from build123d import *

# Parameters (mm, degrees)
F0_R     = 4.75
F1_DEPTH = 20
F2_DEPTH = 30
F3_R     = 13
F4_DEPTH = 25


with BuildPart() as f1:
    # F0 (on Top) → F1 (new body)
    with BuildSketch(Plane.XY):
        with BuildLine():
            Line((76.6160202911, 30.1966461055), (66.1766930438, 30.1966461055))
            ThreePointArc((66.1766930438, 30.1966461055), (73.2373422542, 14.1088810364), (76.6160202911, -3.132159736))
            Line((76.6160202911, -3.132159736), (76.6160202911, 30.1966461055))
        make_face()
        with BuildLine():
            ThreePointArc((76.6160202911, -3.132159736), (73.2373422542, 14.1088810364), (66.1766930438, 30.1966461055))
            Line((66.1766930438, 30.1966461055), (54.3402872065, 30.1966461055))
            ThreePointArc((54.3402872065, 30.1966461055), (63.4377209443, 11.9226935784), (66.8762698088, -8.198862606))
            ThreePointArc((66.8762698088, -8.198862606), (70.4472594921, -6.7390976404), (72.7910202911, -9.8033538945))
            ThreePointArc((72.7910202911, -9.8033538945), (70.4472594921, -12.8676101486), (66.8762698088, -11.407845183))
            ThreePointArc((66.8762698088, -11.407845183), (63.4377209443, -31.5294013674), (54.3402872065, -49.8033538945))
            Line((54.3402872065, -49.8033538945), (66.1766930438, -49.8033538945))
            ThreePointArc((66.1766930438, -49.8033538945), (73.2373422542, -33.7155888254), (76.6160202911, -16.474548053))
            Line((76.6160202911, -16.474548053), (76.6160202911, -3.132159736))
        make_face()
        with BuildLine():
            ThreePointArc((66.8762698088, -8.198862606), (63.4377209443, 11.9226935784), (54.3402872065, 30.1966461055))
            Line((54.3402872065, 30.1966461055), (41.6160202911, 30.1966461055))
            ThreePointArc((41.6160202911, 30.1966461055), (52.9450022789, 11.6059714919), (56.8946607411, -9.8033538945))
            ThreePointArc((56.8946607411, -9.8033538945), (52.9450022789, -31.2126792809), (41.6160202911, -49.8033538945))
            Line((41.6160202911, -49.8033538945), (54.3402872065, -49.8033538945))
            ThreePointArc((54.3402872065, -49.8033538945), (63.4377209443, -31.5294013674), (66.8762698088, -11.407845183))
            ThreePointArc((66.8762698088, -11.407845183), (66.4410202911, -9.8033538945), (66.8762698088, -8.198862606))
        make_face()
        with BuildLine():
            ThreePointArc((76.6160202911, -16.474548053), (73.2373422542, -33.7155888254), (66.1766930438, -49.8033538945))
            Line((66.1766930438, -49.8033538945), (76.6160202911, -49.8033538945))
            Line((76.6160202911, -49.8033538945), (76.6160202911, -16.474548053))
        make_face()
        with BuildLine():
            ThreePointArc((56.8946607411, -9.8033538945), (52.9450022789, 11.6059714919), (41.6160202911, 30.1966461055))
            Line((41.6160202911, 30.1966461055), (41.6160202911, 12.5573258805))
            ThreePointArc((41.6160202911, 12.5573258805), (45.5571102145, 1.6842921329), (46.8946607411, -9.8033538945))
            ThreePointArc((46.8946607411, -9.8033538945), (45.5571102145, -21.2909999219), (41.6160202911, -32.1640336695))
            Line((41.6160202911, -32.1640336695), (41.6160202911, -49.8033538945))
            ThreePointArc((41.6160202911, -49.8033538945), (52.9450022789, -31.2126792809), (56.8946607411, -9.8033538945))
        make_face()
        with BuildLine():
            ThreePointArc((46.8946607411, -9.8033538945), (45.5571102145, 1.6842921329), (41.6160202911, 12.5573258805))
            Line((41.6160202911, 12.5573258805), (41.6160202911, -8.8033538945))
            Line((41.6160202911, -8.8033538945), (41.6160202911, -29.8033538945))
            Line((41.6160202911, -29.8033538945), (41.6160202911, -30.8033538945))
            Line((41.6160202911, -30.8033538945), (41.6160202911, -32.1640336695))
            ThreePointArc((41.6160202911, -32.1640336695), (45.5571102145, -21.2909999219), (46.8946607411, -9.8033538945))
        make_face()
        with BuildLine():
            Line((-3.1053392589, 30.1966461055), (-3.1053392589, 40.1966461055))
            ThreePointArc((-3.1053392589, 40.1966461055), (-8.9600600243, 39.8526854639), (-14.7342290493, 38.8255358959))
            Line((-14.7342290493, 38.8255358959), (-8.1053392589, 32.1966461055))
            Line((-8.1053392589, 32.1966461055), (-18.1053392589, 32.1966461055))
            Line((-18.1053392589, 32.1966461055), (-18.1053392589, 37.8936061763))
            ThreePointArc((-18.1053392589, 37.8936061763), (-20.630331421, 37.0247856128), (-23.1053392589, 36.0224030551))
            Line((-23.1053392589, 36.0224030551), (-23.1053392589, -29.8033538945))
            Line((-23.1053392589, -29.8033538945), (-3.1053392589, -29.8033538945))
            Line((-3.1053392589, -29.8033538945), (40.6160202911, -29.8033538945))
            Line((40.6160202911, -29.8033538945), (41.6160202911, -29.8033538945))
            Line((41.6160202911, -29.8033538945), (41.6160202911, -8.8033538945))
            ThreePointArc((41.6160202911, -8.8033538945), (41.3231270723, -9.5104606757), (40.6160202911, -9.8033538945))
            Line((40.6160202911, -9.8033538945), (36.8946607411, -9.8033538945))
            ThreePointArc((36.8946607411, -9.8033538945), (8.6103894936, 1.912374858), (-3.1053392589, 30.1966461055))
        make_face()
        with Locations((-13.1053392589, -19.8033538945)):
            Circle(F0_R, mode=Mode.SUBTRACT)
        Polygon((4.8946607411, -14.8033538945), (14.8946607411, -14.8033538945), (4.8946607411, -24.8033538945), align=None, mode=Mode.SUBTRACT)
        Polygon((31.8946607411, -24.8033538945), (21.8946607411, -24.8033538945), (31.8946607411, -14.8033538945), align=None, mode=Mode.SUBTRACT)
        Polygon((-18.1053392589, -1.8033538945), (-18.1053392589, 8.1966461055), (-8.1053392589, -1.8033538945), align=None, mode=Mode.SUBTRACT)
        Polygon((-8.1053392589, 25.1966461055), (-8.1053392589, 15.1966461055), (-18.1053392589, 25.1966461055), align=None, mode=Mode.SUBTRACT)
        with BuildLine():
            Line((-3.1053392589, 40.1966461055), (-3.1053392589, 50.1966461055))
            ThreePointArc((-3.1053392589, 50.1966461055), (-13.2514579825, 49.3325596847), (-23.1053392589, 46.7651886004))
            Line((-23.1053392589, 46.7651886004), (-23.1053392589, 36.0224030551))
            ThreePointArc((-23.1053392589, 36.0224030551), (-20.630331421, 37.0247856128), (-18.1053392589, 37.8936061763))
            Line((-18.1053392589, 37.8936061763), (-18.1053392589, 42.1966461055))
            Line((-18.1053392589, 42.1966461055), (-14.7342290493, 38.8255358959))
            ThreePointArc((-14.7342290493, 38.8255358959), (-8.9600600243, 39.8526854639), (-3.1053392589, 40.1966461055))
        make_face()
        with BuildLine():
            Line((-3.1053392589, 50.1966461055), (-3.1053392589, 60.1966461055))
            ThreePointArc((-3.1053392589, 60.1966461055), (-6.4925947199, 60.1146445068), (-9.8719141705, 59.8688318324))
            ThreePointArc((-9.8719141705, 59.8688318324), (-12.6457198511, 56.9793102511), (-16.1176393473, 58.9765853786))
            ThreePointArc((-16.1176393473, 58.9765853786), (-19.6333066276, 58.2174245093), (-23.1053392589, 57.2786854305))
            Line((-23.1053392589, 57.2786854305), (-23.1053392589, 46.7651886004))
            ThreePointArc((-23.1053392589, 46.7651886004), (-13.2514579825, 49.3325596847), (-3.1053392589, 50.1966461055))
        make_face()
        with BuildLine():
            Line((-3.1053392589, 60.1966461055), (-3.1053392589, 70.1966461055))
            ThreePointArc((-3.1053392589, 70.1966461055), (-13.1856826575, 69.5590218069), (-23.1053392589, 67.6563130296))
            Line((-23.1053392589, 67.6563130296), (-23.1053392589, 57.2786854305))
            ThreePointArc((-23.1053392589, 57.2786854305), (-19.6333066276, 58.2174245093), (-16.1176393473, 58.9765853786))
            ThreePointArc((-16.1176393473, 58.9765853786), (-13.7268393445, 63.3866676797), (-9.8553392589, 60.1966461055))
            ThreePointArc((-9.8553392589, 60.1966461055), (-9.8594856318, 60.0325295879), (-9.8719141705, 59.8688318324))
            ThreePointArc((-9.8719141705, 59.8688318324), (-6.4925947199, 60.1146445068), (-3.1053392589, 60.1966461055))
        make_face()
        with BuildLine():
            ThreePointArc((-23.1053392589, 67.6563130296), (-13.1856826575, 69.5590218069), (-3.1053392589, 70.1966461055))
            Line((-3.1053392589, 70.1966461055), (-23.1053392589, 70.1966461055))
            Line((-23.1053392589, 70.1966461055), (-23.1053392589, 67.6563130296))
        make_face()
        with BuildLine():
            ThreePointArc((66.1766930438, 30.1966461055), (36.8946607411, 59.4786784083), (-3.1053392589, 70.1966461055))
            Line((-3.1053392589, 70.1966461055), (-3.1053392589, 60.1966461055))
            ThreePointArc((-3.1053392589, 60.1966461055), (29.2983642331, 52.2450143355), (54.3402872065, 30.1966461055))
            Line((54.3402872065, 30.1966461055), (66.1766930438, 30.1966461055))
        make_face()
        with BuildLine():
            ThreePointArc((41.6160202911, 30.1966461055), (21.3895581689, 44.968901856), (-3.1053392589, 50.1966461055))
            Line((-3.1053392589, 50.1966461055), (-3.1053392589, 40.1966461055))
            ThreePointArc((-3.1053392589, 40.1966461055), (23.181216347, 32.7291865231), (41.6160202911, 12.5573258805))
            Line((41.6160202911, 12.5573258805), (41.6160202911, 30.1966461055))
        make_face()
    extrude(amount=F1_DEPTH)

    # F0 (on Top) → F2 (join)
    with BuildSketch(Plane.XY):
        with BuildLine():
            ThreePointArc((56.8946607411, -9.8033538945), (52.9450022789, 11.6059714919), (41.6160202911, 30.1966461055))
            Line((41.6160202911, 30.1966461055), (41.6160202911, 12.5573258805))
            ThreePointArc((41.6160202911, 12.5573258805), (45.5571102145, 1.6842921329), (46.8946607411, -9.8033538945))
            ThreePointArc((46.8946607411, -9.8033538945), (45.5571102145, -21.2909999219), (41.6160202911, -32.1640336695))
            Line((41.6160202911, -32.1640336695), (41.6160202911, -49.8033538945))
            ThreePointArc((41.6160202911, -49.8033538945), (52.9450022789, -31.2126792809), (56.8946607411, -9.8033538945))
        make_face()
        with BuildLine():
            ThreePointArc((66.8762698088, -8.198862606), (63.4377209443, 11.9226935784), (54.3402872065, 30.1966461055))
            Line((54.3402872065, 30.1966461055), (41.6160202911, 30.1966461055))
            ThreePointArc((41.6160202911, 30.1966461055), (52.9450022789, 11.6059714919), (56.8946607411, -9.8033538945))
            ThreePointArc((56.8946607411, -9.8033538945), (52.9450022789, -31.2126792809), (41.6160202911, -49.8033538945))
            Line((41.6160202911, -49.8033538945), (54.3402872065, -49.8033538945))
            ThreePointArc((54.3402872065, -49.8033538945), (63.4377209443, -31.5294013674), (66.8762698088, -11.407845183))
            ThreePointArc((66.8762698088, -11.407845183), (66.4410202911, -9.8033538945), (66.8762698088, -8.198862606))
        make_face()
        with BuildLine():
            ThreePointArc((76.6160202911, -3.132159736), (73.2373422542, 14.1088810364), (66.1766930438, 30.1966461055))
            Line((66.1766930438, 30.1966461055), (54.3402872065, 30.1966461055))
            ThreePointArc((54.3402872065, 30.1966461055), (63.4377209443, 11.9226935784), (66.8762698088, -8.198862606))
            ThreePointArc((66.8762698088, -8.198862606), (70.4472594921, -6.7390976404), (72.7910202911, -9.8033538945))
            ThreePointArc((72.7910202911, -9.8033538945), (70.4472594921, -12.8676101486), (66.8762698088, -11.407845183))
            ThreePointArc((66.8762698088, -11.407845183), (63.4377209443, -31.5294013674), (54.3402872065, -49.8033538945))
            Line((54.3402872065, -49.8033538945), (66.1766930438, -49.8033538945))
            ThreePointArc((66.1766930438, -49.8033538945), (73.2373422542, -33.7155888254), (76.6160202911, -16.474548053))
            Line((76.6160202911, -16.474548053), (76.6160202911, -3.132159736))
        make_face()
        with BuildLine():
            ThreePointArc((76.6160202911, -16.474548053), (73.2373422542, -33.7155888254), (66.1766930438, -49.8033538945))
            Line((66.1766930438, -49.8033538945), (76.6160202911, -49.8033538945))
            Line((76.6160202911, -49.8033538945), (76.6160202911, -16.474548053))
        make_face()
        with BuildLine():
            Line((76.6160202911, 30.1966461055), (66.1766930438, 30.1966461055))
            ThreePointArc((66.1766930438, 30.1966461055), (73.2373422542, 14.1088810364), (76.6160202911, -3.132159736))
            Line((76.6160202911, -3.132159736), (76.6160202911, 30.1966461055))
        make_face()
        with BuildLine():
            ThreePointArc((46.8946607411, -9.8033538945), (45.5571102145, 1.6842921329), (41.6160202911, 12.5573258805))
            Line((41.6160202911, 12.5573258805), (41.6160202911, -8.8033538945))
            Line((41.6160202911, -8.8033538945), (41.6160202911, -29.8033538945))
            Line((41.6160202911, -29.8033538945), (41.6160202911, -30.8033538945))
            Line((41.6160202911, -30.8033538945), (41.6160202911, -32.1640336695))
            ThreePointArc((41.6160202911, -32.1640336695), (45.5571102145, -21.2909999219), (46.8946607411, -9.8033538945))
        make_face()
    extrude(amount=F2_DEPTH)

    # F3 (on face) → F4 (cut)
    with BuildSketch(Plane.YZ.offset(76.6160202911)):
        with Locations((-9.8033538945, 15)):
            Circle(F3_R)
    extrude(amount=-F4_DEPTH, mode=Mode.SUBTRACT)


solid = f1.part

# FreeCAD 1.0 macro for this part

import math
import FreeCAD as App
import Part
import Sketcher

doc = App.newDocument("Part")
params = doc.addObject("Spreadsheet::Sheet", "Params")
for row, (alias, value) in enumerate([
    ("sketch1_radius", "80 mm"),
    ("sketch1_radius2", "60 mm"),
    ("sketch1_radius3", "70 mm"),
    ("sketch1_radius4", "1 mm"),
    ("sketch1_radius5", "40 mm"),
    ("pad1_length", "20 mm"),
    ("sketch2_width", "35 mm"),
    ("sketch2_height", "80 mm"),
    ("pad2_length", "30 mm"),
    ("sketch3_diameter", "26 mm"),
    ("pocket1_length", "25 mm"),
], start=1):
    params.set(f"A{row}", alias)
    params.set(f"B{row}", "=" + value)
    params.setAlias(f"B{row}", alias)

body = doc.addObject("PartDesign::Body", "Body")

# Sketch on XY plane
sketch1 = doc.addObject("Sketcher::SketchObject", "Sketch")
body.addObject(sketch1)
sketch1.AttachmentSupport = (doc.XY_Plane, [""])
sketch1.MapMode = "FlatFace"
sketch1.addGeometry([
    Part.LineSegment(App.Vector(76.62, 30.2, 0), App.Vector(66.18, 30.2, 0)),  # 0
    Part.ArcOfCircle(Part.Circle(App.Vector(-3.11, -9.8, 0), App.Vector(0, 0, 1), 80), math.radians(30), math.radians(90)),  # 1
    Part.LineSegment(App.Vector(-3.11, 70.2, 0), App.Vector(-23.11, 70.2, 0)),  # 2
    Part.LineSegment(App.Vector(-23.11, 70.2, 0), App.Vector(-23.11, -29.8, 0)),  # 3
    Part.LineSegment(App.Vector(-23.11, -29.8, 0), App.Vector(41.62, -29.8, 0)),  # 4
    Part.LineSegment(App.Vector(41.62, -29.8, 0), App.Vector(41.62, -49.8, 0)),  # 5
    Part.LineSegment(App.Vector(41.62, -49.8, 0), App.Vector(76.62, -49.8, 0)),  # 6
    Part.LineSegment(App.Vector(76.62, -49.8, 0), App.Vector(76.62, 30.2, 0)),  # 7
    Part.LineSegment(App.Vector(54.34, 30.2, 0), App.Vector(41.62, 30.2, 0)),  # 8
    Part.ArcOfCircle(Part.Circle(App.Vector(-3.11, -9.8, 0), App.Vector(0, 0, 1), 60), math.radians(42), math.radians(90)),  # 9
    Part.LineSegment(App.Vector(-3.11, 50.2, 0), App.Vector(-3.11, 60.2, 0)),  # 10
    Part.ArcOfCircle(Part.Circle(App.Vector(-3.11, -9.8, 0), App.Vector(0, 0, 1), 70), math.radians(35), math.radians(90)),  # 11
    Part.LineSegment(App.Vector(41.62, 12.56, 0), App.Vector(41.62, -8.8, 0)),  # 12
    Part.ArcOfCircle(Part.Circle(App.Vector(40.62, -8.8, 0), App.Vector(0, 0, 1), 1), math.radians(-90), math.radians(0)),  # 13
    Part.LineSegment(App.Vector(40.62, -9.8, 0), App.Vector(36.89, -9.8, 0)),  # 14
    Part.ArcOfCircle(Part.Circle(App.Vector(36.89, 30.2, 0), App.Vector(0, 0, 1), 40), math.radians(180), math.radians(270)),  # 15
    Part.LineSegment(App.Vector(-3.11, 30.2, 0), App.Vector(-3.11, 40.2, 0)),  # 16
    Part.ArcOfCircle(Part.Circle(App.Vector(-3.11, -9.8, 0), App.Vector(0, 0, 1), 50), math.radians(27), math.radians(90)),  # 17
    Part.ArcOfCircle(Part.Circle(App.Vector(-13.11, 60.2, 0), App.Vector(0, 0, 1), 3.25), math.radians(-158), math.radians(-6)),  # 18
    Part.ArcOfCircle(Part.Circle(App.Vector(-13.11, 60.2, 0), App.Vector(0, 0, 1), 3.25), math.radians(0), math.radians(202)),  # 19
    Part.ArcOfCircle(Part.Circle(App.Vector(-13.11, 60.2, 0), App.Vector(0, 0, 1), 3.25), math.radians(-5.79), math.radians(0)),  # 20
    Part.LineSegment(App.Vector(-18.11, 32.2, 0), App.Vector(-18.11, 42.2, 0)),  # 21
    Part.LineSegment(App.Vector(-18.11, 42.2, 0), App.Vector(-8.11, 32.2, 0)),  # 22
    Part.LineSegment(App.Vector(-8.11, 32.2, 0), App.Vector(-18.11, 32.2, 0)),  # 23
    Part.Circle(App.Vector(-13.11, -19.8, 0), App.Vector(0, 0, 1), 4.75),  # 24
    Part.LineSegment(App.Vector(4.89, -24.8, 0), App.Vector(4.89, -14.8, 0)),  # 25
    Part.LineSegment(App.Vector(4.89, -14.8, 0), App.Vector(14.89, -14.8, 0)),  # 26
    Part.LineSegment(App.Vector(14.89, -14.8, 0), App.Vector(4.89, -24.8, 0)),  # 27
    Part.LineSegment(App.Vector(31.89, -14.8, 0), App.Vector(31.89, -24.8, 0)),  # 28
    Part.LineSegment(App.Vector(31.89, -24.8, 0), App.Vector(21.89, -24.8, 0)),  # 29
    Part.LineSegment(App.Vector(21.89, -24.8, 0), App.Vector(31.89, -14.8, 0)),  # 30
    Part.ArcOfCircle(Part.Circle(App.Vector(69.62, -9.8, 0), App.Vector(0, 0, 1), 3.17), math.radians(0), math.radians(150)),  # 31
    Part.ArcOfCircle(Part.Circle(App.Vector(69.62, -9.8, 0), App.Vector(0, 0, 1), 3.17), math.radians(-150), math.radians(0)),  # 32
    Part.ArcOfCircle(Part.Circle(App.Vector(69.62, -9.8, 0), App.Vector(0, 0, 1), 3.17), math.radians(150), math.radians(210)),  # 33
    Part.LineSegment(App.Vector(-8.11, -1.8, 0), App.Vector(-18.11, -1.8, 0)),  # 34
    Part.LineSegment(App.Vector(-18.11, -1.8, 0), App.Vector(-18.11, 8.2, 0)),  # 35
    Part.LineSegment(App.Vector(-18.11, 8.2, 0), App.Vector(-8.11, -1.8, 0)),  # 36
    Part.LineSegment(App.Vector(-18.11, 25.2, 0), App.Vector(-8.11, 25.2, 0)),  # 37
    Part.LineSegment(App.Vector(-8.11, 25.2, 0), App.Vector(-8.11, 15.2, 0)),  # 38
    Part.LineSegment(App.Vector(-8.11, 15.2, 0), App.Vector(-18.11, 25.2, 0)),  # 39
], False)
sketch1.addConstraint([
    Sketcher.Constraint("Coincident", 0, 2, 1, 1),
    Sketcher.Constraint("Tangent", 1, 2, 2, 1),
    Sketcher.Constraint("Coincident", 2, 2, 3, 1),
    Sketcher.Constraint("Coincident", 3, 2, 4, 1),
    Sketcher.Constraint("Coincident", 4, 2, 5, 1),
    Sketcher.Constraint("Coincident", 5, 2, 6, 1),
    Sketcher.Constraint("Coincident", 6, 2, 7, 1),
    Sketcher.Constraint("Coincident", 7, 2, 0, 1),
    Sketcher.Constraint("Coincident", 8, 2, 9, 1),
    Sketcher.Constraint("Coincident", 9, 2, 10, 1),
    Sketcher.Constraint("Coincident", 10, 2, 11, 2),
    Sketcher.Constraint("Coincident", 11, 1, 8, 1),
    Sketcher.Constraint("Tangent", 12, 2, 13, 2),
    Sketcher.Constraint("Tangent", 13, 1, 14, 1),
    Sketcher.Constraint("Tangent", 14, 2, 15, 2),
    Sketcher.Constraint("Tangent", 15, 1, 16, 1),
    Sketcher.Constraint("Coincident", 16, 2, 17, 2),
    Sketcher.Constraint("Coincident", 17, 1, 12, 1),
    Sketcher.Constraint("Tangent", 18, 1, 19, 2),
    Sketcher.Constraint("Tangent", 19, 1, 20, 2),
    Sketcher.Constraint("Tangent", 20, 1, 18, 2),
    Sketcher.Constraint("Coincident", 21, 2, 22, 1),
    Sketcher.Constraint("Coincident", 22, 2, 23, 1),
    Sketcher.Constraint("Coincident", 23, 2, 21, 1),
    Sketcher.Constraint("Coincident", 25, 2, 26, 1),
    Sketcher.Constraint("Coincident", 26, 2, 27, 1),
    Sketcher.Constraint("Coincident", 27, 2, 25, 1),
    Sketcher.Constraint("Coincident", 28, 2, 29, 1),
    Sketcher.Constraint("Coincident", 29, 2, 30, 1),
    Sketcher.Constraint("Coincident", 30, 2, 28, 1),
    Sketcher.Constraint("Tangent", 31, 1, 32, 2),
    Sketcher.Constraint("Tangent", 32, 1, 33, 2),
    Sketcher.Constraint("Tangent", 33, 1, 31, 2),
    Sketcher.Constraint("Coincident", 34, 2, 35, 1),
    Sketcher.Constraint("Coincident", 35, 2, 36, 1),
    Sketcher.Constraint("Coincident", 36, 2, 34, 1),
    Sketcher.Constraint("Coincident", 37, 2, 38, 1),
    Sketcher.Constraint("Coincident", 38, 2, 39, 1),
    Sketcher.Constraint("Coincident", 39, 2, 37, 1),
    Sketcher.Constraint("Horizontal", 0),
    Sketcher.Constraint("Horizontal", 2),
    Sketcher.Constraint("Vertical", 3),
    Sketcher.Constraint("Horizontal", 4),
    Sketcher.Constraint("Vertical", 5),
    Sketcher.Constraint("Horizontal", 6),
    Sketcher.Constraint("Vertical", 7),
    Sketcher.Constraint("Horizontal", 8),
    Sketcher.Constraint("Vertical", 10),
    Sketcher.Constraint("Vertical", 12),
    Sketcher.Constraint("Horizontal", 14),
    Sketcher.Constraint("Vertical", 16),
    Sketcher.Constraint("Vertical", 21),
    Sketcher.Constraint("Horizontal", 23),
    Sketcher.Constraint("Vertical", 25),
    Sketcher.Constraint("Horizontal", 26),
    Sketcher.Constraint("Vertical", 28),
    Sketcher.Constraint("Horizontal", 29),
    Sketcher.Constraint("Horizontal", 34),
    Sketcher.Constraint("Vertical", 35),
    Sketcher.Constraint("Horizontal", 37),
    Sketcher.Constraint("Vertical", 38),
    Sketcher.Constraint("Coincident", 9, 3, 1, 3),
    Sketcher.Constraint("Coincident", 11, 3, 1, 3),
    Sketcher.Constraint("Coincident", 17, 3, 1, 3),
    Sketcher.Constraint("Perpendicular", 22, 27),
    Sketcher.Constraint("Parallel", 27, 30),
    Sketcher.Constraint("Perpendicular", 30, 36),
    Sketcher.Constraint("Parallel", 36, 39),
    Sketcher.Constraint("Horizontal", 17, 3, 31, 3),
    Sketcher.Constraint("Horizontal", 15, 3, 0, 2),
    Sketcher.Constraint("Horizontal", 7, 2, 8, 2),
    Sketcher.Constraint("Horizontal", 20, 3, 10, 2),
    Sketcher.Constraint("Horizontal", 33, 3, 13, 1),
    Sketcher.Constraint("Horizontal", 10, 2, 19, 1),
    Sketcher.Constraint("Horizontal", 27, 2, 28, 2),
    Sketcher.Constraint("Horizontal", 26, 2, 30, 2),
    Sketcher.Constraint("Horizontal", 14, 2, 31, 1),
    Sketcher.Constraint("Vertical", 20, 3, 24, 3),
    Sketcher.Constraint("Vertical", 5, 2, 8, 2),
    Sketcher.Constraint("Vertical", 1, 2, 9, 2),
    Sketcher.Constraint("Vertical", 8, 2, 12, 2),
    Sketcher.Constraint("Vertical", 10, 2, 15, 1),
    Sketcher.Constraint("Vertical", 32, 1, 33, 1),
    Sketcher.Constraint("Vertical", 23, 2, 34, 2),
    Sketcher.Constraint("Vertical", 22, 2, 36, 2),
    Sketcher.Constraint("Vertical", 36, 2, 37, 2),
    Sketcher.Constraint("Vertical", 35, 2, 39, 2),
    Sketcher.Constraint("Equal", 23, 26),
    Sketcher.Constraint("Equal", 2, 5),
    Sketcher.Constraint("Equal", 37, 10),
    Sketcher.Constraint("Equal", 10, 16),
    Sketcher.Constraint("Equal", 16, 21),
    Sketcher.Constraint("Radius", 1, 80.0),
    Sketcher.Constraint("Radius", 9, 60.0),
    Sketcher.Constraint("Radius", 11, 70.0),
    Sketcher.Constraint("Radius", 13, 1.0),
    Sketcher.Constraint("Radius", 15, 40.0),
    Sketcher.Constraint("Diameter", 24, 9.5),
    Sketcher.Constraint("DistanceX", 2, 2, 2, 1, 20.0),
    Sketcher.Constraint("DistanceX", 6, 1, 6, 2, 35.0),
    Sketcher.Constraint("DistanceY", 3, 2, 3, 1, 100.0),
    Sketcher.Constraint("Radius", 18, 3.25),
    Sketcher.Constraint("Radius", 31, 3.175),
    Sketcher.Constraint("DistanceX", 18, 3, 15, 3, 50.0),
    Sketcher.Constraint("DistanceY", 24, 3, 9, 3, 10.0),
    Sketcher.Constraint("DistanceX", 13, 3, 31, 3, 29.0),
    Sketcher.Constraint("DistanceX", 21, 2, 16, 2, 15.0),
    Sketcher.Constraint("DistanceY", 16, 2, 21, 2, 2.0),
    Sketcher.Constraint("DistanceX", 9, 3, 25, 2, 8.0),
    Sketcher.Constraint("DistanceY", 25, 2, 9, 3, 5.0),
    Sketcher.Constraint("DistanceX", 28, 2, 14, 2, 5.0),
    Sketcher.Constraint("DistanceY", 1, 3, 34, 2, 8.0),
    Sketcher.Constraint("DistanceY", 37, 2, 22, 2, 7.0),
    Sketcher.Constraint("DistanceX", 18, 1, 20, 3, 3.0123),
    Sketcher.Constraint("DistanceX", 1, 3, -1, 1, 3.105339),
    Sketcher.Constraint("DistanceY", -1, 1, 20, 1, 59.868832),
    Sketcher.Constraint("DistanceX", -1, 1, 32, 1, 66.87627),
    Sketcher.Constraint("DistanceY", 1, 3, -1, 1, 9.803354),
])
sketch1.setExpression("Constraints[92]", "Params.sketch1_radius")
sketch1.setExpression("Constraints[93]", "Params.sketch1_radius2")
sketch1.setExpression("Constraints[94]", "Params.sketch1_radius3")
sketch1.setExpression("Constraints[95]", "Params.sketch1_radius4")
sketch1.setExpression("Constraints[96]", "Params.sketch1_radius5")
pad1 = doc.addObject("PartDesign::Pad", "Pad")
body.addObject(pad1)
pad1.Profile = sketch1
pad1.setExpression("Length", "Params.pad1_length")

# Sketch on XY plane
sketch2 = doc.addObject("Sketcher::SketchObject", "Sketch001")
body.addObject(sketch2)
sketch2.AttachmentSupport = (doc.XY_Plane, [""])
sketch2.MapMode = "FlatFace"
sketch2.addGeometry([
    Part.LineSegment(App.Vector(41.6, 30.2, 0), App.Vector(41.6, -49.8, 0)),  # 0
    Part.LineSegment(App.Vector(41.6, -49.8, 0), App.Vector(76.6, -49.8, 0)),  # 1
    Part.LineSegment(App.Vector(76.6, -49.8, 0), App.Vector(76.6, 30.2, 0)),  # 2
    Part.LineSegment(App.Vector(76.6, 30.2, 0), App.Vector(41.6, 30.2, 0)),  # 3
    Part.ArcOfCircle(Part.Circle(App.Vector(69.6, -9.8, 0), App.Vector(0, 0, 1), 3.2), math.radians(150), math.radians(210)),  # 4
    Part.ArcOfCircle(Part.Circle(App.Vector(69.6, -9.8, 0), App.Vector(0, 0, 1), 3.2), math.radians(0), math.radians(150)),  # 5
    Part.ArcOfCircle(Part.Circle(App.Vector(69.6, -9.8, 0), App.Vector(0, 0, 1), 3.2), math.radians(-150), math.radians(0)),  # 6
], False)
sketch2.addConstraint([
    Sketcher.Constraint("Coincident", 0, 2, 1, 1),
    Sketcher.Constraint("Coincident", 1, 2, 2, 1),
    Sketcher.Constraint("Coincident", 2, 2, 3, 1),
    Sketcher.Constraint("Coincident", 3, 2, 0, 1),
    Sketcher.Constraint("Tangent", 4, 1, 5, 2),
    Sketcher.Constraint("Tangent", 5, 1, 6, 2),
    Sketcher.Constraint("Tangent", 6, 1, 4, 2),
    Sketcher.Constraint("Vertical", 0),
    Sketcher.Constraint("Horizontal", 1),
    Sketcher.Constraint("Vertical", 2),
    Sketcher.Constraint("Horizontal", 3),
    Sketcher.Constraint("Horizontal", 6, 3, 5, 1),
    Sketcher.Constraint("Vertical", 4, 1, 6, 1),
    Sketcher.Constraint("DistanceX", 1, 1, 1, 2, 35.0),
    Sketcher.Constraint("DistanceY", 0, 2, 0, 1, 80.0),
    Sketcher.Constraint("Radius", 4, 3.175),
    Sketcher.Constraint("DistanceX", 0, 2, 6, 3, 28.0),
    Sketcher.Constraint("DistanceY", 0, 2, 6, 3, 40.0),
    Sketcher.Constraint("DistanceX", -1, 1, 4, 3, 69.61602),
    Sketcher.Constraint("DistanceX", -1, 1, 4, 1, 66.87627),
    Sketcher.Constraint("DistanceY", 4, 3, -1, 1, 9.803354),
])
sketch2.setExpression("Constraints[13]", "Params.sketch2_width")
sketch2.setExpression("Constraints[14]", "Params.sketch2_height")
pad2 = doc.addObject("PartDesign::Pad", "Pad001")
body.addObject(pad2)
pad2.Profile = sketch2
pad2.setExpression("Length", "Params.pad2_length")

# Sketch on YZ plane
sketch3 = doc.addObject("Sketcher::SketchObject", "Sketch002")
body.addObject(sketch3)
sketch3.AttachmentSupport = (doc.YZ_Plane, [""])
sketch3.MapMode = "FlatFace"
sketch3.AttachmentOffset = App.Placement(App.Vector(0, 0, 76.61602), App.Rotation())
sketch3.addGeometry(Part.Circle(App.Vector(-10, 15, 0), App.Vector(0, 0, 1), 13), False)
sketch3.addConstraint([
    Sketcher.Constraint("Diameter", 0, 26.0),
    Sketcher.Constraint("DistanceY", -1, 1, 0, 3, 15.0),
    Sketcher.Constraint("DistanceX", 0, 3, -1, 1, 9.803354),
])
sketch3.setExpression("Constraints[0]", "Params.sketch3_diameter")
pocket1 = doc.addObject("PartDesign::Pocket", "Pocket")
body.addObject(pocket1)
pocket1.Profile = sketch3
pocket1.setExpression("Length", "Params.pocket1_length")

doc.recompute()
